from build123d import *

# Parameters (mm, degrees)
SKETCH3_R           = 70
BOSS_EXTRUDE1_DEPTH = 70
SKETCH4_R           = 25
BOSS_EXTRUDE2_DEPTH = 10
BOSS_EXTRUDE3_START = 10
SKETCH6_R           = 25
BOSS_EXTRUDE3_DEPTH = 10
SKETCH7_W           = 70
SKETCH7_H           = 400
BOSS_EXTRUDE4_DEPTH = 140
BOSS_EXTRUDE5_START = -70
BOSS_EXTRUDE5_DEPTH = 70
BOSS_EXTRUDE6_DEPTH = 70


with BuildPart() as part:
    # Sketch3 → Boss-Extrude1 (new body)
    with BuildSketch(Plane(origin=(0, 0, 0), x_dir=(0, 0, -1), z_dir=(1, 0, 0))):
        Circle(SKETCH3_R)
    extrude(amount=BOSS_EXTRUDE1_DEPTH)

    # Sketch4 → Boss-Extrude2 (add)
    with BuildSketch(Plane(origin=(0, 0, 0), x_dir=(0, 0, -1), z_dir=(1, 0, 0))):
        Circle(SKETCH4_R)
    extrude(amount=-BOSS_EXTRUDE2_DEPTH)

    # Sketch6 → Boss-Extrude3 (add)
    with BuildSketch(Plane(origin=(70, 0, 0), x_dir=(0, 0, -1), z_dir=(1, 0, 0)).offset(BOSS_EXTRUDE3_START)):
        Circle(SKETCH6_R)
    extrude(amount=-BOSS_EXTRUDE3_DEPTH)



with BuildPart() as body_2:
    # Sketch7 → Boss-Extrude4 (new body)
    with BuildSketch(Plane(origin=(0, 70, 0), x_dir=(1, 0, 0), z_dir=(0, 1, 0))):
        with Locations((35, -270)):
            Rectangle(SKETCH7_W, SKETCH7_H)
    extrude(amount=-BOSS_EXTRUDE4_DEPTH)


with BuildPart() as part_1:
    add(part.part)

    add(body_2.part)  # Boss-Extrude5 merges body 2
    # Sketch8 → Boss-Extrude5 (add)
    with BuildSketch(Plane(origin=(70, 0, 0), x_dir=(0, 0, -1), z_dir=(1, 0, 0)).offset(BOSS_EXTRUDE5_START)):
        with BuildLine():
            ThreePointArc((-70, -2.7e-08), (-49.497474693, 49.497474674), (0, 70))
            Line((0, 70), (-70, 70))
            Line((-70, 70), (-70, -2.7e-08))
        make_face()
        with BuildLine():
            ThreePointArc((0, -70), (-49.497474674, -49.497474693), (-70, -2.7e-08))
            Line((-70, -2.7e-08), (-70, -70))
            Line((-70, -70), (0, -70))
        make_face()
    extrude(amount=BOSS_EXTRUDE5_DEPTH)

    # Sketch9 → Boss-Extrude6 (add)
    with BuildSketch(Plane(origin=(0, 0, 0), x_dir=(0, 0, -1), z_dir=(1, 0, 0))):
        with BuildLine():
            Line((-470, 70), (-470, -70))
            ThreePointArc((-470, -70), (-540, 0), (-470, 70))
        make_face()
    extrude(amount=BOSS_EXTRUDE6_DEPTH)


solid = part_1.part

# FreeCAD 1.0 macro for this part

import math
import FreeCAD as App
import Part
import Sketcher

V = App.Vector


def add_polygon(sketch, points):
    """Adds a closed chain of lines whose ends are joined by coincident constraints."""
    first, n = sketch.GeometryCount, len(points)
    for a, b in zip(points, points[1:] + points[:1]):
        sketch.addGeometry(Part.LineSegment(App.Vector(*a, 0), App.Vector(*b, 0)), False)
    for i in range(n):
        sketch.addConstraint(Sketcher.Constraint("Coincident", first + i, 2, first + (i + 1) % n, 1))

doc = App.newDocument("Part")
body = doc.addObject("PartDesign::Body", "Body")

# Sketch on YZ plane
sketch1 = body.newObject("Sketcher::SketchObject", "Sketch")
sketch1.AttachmentSupport = (doc.getObject("YZ_Plane"), [""])
sketch1.MapMode = "FlatFace"
sketch1.addGeometry(Part.Circle(V(0, 0, 0), V(0, 0, 1), 70), False)
sketch1.addConstraint([
    Sketcher.Constraint("Coincident", 0, 3, -1, 1),
    Sketcher.Constraint("Diameter", 0, 140.0),
])
pad1 = body.newObject("PartDesign::Pad", "Pad")
pad1.Profile = sketch1
pad1.Length = 70

# Sketch on YZ plane
sketch2 = body.newObject("Sketcher::SketchObject", "Sketch001")
sketch2.AttachmentSupport = (doc.getObject("YZ_Plane"), [""])
sketch2.MapMode = "FlatFace"
sketch2.addGeometry(Part.Circle(V(0, 0, 0), V(0, 0, 1), 25), False)
sketch2.addConstraint([
    Sketcher.Constraint("Coincident", 0, 3, -1, 1),
    Sketcher.Constraint("Diameter", 0, 50.0),
])
pad2 = body.newObject("PartDesign::Pad", "Pad001")
pad2.Profile = sketch2
pad2.Length = 10
pad2.Reversed = True

# Sketch on YZ plane
sketch3 = body.newObject("Sketcher::SketchObject", "Sketch002")
sketch3.AttachmentSupport = (doc.getObject("YZ_Plane"), [""])
sketch3.MapMode = "FlatFace"
sketch3.AttachmentOffset = App.Placement(V(0, 0, 80), App.Rotation())
sketch3.addGeometry(Part.Circle(V(0, 0, 0), V(0, 0, 1), 25), False)
sketch3.addConstraint([
    Sketcher.Constraint("Coincident", 0, 3, -1, 1),
    Sketcher.Constraint("Diameter", 0, 50.0),
])
pad3 = body.newObject("PartDesign::Pad", "Pad002")
pad3.Profile = sketch3
pad3.Length = 10
pad3.Reversed = True
body2 = doc.addObject("PartDesign::Body", "Body001")

# Sketch on XZ plane
sketch4 = body2.newObject("Sketcher::SketchObject", "Sketch003")
sketch4.AttachmentSupport = (doc.getObject("XZ_Plane001"), [""])
sketch4.MapMode = "FlatFace"
sketch4.AttachmentOffset = App.Placement(V(0, 0, -70), App.Rotation())
add_polygon(sketch4, [(0, 70), (0, 470), (70, 470), (70, 70)])  # lines 0-3
sketch4.addConstraint([
    Sketcher.Constraint("Vertical", 0),
    Sketcher.Constraint("Horizontal", 1),
    Sketcher.Constraint("Vertical", 2),
    Sketcher.Constraint("Horizontal", 3),
    Sketcher.Constraint("PointOnObject", 0, 2, -2),
    Sketcher.Constraint("DistanceX", 1, 1, 1, 2, 70.0),
    Sketcher.Constraint("DistanceY", 0, 1, 0, 2, 400.0),
    Sketcher.Constraint("DistanceY", -1, 1, 0, 2, 470.0),
])
pad4 = body2.newObject("PartDesign::Pad", "Pad003")
pad4.Profile = sketch4
pad4.Length = 140
body.AllowCompound = True
doc.recompute()

boolean = body.newObject("PartDesign::Boolean", "Boolean")
boolean.Type = "Fuse"
boolean.addObjects([body2])

# Sketch on YZ plane
sketch5 = body.newObject("Sketcher::SketchObject", "Sketch004")
sketch5.AttachmentSupport = (doc.getObject("YZ_Plane"), [""])
sketch5.MapMode = "FlatFace"
sketch5.addGeometry([
    Part.ArcOfCircle(Part.Circle(V(0, 0, 0), V(0, 0, 1), 70), math.radians(0), math.radians(90)),  # 0
    Part.LineSegment(V(70, 0, 0), V(70, 70, 0)),  # 1
    Part.LineSegment(V(70, 70, 0), V(0, 70, 0)),  # 2
    Part.ArcOfCircle(Part.Circle(V(0, 0, 0), V(0, 0, 1), 70), math.radians(90), math.radians(180)),  # 3
    Part.LineSegment(V(0, 70, 0), V(-70, 70, 0)),  # 4
    Part.LineSegment(V(-70, 70, 0), V(-70, 0, 0)),  # 5
], False)
sketch5.addConstraint([
    Sketcher.Constraint("Tangent", 0, 1, 1, 1),
    Sketcher.Constraint("Coincident", 1, 2, 2, 1),
    Sketcher.Constraint("Tangent", 2, 2, 0, 2),
    Sketcher.Constraint("Tangent", 3, 1, 4, 1),
    Sketcher.Constraint("Coincident", 4, 2, 5, 1),
    Sketcher.Constraint("Tangent", 5, 2, 3, 2),
    Sketcher.Constraint("Vertical", 1),
    Sketcher.Constraint("Horizontal", 2),
    Sketcher.Constraint("Horizontal", 4),
    Sketcher.Constraint("Vertical", 5),
    Sketcher.Constraint("Coincident", 0, 3, -1, 1),
    Sketcher.Constraint("Coincident", 3, 3, -1, 1),
    Sketcher.Constraint("Equal", 0, 3),
    Sketcher.Constraint("Radius", 0, 70.0),
])
pad5 = body.newObject("PartDesign::Pad", "Pad004")
pad5.Profile = sketch5
pad5.Length = 70

# Sketch on YZ plane
sketch6 = body.newObject("Sketcher::SketchObject", "Sketch005")
sketch6.AttachmentSupport = (doc.getObject("YZ_Plane"), [""])
sketch6.MapMode = "FlatFace"
sketch6.addGeometry([
    Part.LineSegment(V(-70, 470, 0), V(70, 470, 0)),
    Part.ArcOfCircle(Part.Circle(V(0, 470, 0), V(0, 0, 1), 70), math.radians(0), math.radians(180)),
], False)
sketch6.addConstraint([
    Sketcher.Constraint("Coincident", 0, 1, 1, 2),
    Sketcher.Constraint("Coincident", 1, 1, 0, 2),
    Sketcher.Constraint("Horizontal", 0),
    Sketcher.Constraint("PointOnObject", 1, 3, -2),
    Sketcher.Constraint("Horizontal", 1, 3, 0, 1),
    Sketcher.Constraint("Radius", 1, 70.0),
    Sketcher.Constraint("DistanceY", -1, 1, 1, 3, 470.0),
])
pad6 = body.newObject("PartDesign::Pad", "Pad005")
pad6.Profile = sketch6
pad6.Length = 70

doc.recompute()
